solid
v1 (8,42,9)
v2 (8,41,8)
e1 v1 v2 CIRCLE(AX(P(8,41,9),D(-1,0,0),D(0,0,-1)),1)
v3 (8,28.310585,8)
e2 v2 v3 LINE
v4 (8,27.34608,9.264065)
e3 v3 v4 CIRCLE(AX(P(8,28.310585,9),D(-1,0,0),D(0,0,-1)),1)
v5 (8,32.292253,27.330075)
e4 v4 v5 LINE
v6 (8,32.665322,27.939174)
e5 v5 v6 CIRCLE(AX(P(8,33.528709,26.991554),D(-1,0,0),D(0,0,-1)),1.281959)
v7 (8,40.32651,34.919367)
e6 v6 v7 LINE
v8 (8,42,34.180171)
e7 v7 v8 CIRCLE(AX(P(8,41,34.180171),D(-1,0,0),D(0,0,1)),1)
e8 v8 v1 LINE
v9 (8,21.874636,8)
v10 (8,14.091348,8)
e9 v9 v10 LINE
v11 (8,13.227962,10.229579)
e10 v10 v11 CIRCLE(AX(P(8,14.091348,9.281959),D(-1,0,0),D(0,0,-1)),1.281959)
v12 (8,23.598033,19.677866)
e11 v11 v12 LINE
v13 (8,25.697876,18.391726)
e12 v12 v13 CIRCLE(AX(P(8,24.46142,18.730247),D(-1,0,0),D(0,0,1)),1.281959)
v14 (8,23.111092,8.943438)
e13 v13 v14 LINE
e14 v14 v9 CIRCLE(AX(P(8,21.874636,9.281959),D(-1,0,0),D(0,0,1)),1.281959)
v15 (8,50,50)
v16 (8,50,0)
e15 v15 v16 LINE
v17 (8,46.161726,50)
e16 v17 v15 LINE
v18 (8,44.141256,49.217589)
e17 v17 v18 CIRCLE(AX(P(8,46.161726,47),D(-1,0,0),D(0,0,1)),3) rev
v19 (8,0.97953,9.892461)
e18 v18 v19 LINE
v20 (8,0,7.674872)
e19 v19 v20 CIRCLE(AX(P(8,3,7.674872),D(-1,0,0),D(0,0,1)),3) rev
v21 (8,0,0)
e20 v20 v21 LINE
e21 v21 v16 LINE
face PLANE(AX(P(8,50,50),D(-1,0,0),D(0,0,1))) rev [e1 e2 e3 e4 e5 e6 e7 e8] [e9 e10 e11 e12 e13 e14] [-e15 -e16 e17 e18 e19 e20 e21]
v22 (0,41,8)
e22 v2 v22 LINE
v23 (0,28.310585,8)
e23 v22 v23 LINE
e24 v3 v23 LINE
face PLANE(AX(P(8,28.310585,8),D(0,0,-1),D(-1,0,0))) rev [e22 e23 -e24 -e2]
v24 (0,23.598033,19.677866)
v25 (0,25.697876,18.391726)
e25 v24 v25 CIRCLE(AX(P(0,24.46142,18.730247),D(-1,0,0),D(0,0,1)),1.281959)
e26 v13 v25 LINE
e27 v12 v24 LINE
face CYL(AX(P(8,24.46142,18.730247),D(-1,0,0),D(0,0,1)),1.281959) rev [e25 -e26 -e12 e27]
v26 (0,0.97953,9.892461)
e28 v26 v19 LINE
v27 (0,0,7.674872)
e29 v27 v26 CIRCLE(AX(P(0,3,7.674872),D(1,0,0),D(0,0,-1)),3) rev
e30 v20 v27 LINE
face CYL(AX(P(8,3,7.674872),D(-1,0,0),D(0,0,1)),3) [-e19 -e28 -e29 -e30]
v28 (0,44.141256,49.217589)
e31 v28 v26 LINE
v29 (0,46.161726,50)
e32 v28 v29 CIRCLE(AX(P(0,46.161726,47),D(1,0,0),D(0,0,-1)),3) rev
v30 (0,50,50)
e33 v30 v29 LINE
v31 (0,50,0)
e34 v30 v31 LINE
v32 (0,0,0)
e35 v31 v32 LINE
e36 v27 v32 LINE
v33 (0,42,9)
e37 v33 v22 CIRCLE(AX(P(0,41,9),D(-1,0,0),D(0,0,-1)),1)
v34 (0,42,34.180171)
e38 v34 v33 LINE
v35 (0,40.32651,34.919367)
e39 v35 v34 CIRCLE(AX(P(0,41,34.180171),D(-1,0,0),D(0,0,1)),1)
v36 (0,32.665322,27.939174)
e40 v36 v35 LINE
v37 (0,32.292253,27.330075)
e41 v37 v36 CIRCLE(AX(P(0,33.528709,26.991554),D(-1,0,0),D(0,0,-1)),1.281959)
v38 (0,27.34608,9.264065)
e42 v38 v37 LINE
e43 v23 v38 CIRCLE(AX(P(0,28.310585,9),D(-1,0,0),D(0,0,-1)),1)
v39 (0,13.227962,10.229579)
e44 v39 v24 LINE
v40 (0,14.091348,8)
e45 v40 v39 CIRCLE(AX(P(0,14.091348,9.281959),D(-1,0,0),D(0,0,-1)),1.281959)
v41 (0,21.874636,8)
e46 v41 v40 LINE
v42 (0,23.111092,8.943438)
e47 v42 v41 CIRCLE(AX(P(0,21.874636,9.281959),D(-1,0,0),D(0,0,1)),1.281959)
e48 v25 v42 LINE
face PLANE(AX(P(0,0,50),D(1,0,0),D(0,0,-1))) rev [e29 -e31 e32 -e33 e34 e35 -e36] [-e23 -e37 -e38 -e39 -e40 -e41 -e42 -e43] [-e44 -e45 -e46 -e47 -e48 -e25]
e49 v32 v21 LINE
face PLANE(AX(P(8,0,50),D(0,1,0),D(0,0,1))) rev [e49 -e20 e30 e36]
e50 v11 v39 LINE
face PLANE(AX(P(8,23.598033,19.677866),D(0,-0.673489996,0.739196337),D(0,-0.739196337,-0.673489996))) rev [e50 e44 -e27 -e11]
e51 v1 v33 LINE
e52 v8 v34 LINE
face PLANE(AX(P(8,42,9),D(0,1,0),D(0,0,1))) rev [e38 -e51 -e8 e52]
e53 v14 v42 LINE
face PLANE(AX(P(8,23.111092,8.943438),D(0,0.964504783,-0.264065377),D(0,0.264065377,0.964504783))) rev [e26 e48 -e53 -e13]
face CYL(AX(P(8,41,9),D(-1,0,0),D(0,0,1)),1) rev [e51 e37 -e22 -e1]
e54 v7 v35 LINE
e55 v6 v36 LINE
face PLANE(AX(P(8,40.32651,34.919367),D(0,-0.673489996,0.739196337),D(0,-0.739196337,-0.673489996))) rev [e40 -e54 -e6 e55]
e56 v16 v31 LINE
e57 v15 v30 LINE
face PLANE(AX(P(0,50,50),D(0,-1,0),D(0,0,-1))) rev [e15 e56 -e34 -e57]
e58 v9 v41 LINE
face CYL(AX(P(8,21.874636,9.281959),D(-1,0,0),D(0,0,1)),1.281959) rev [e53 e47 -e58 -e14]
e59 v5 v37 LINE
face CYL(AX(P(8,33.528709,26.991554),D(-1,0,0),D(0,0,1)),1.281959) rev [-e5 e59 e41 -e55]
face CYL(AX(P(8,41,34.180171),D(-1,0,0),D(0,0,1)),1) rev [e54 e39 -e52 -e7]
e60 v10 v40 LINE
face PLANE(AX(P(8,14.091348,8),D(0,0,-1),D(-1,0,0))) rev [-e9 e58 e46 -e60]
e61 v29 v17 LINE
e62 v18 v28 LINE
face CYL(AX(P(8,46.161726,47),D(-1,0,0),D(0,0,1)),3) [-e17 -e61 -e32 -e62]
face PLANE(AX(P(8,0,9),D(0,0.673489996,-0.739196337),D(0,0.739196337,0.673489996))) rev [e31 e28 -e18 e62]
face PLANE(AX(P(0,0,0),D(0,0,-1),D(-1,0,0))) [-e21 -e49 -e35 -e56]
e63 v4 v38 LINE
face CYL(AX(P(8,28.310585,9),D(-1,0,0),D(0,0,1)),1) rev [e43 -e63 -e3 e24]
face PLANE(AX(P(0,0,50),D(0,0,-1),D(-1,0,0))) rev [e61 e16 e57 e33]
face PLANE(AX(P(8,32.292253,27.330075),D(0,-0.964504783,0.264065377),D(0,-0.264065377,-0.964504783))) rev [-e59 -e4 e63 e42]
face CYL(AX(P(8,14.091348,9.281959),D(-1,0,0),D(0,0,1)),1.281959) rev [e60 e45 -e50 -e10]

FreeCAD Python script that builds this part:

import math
import FreeCAD as App
import Part
import Sketcher
from FreeCAD import Vector


def edges_at(feature, points):
    """Names of the edges that pass closest to the given points."""
    edges = feature.Shape.Edges
    near = lambda p: min(range(len(edges)), key=lambda i: edges[i].distToShape(Part.Vertex(*p))[0])
    return sorted({f"Edge{near(p) + 1}" for p in points})

doc = App.newDocument("Part")
body = doc.addObject("PartDesign::Body", "Body")

sketch1 = body.newObject("Sketcher::SketchObject", "Sketch")
sketch1.AttachmentSupport = (doc.getObject("XY_Plane"), [""])
sketch1.MapMode = "FlatFace"
sketch1.addGeometry([
    Part.LineSegment(Vector(0, 50, 0), Vector(0, 0, 0)),
    Part.LineSegment(Vector(0, 0, 0), Vector(8, 0, 0)),
    Part.LineSegment(Vector(8, 0, 0), Vector(8, 50, 0)),
    Part.LineSegment(Vector(8, 50, 0), Vector(0, 50, 0)),
], False)
sketch1.addConstraint([
    Sketcher.Constraint("Coincident", 0, 2, 1, 1),
    Sketcher.Constraint("Coincident", 1, 2, 2, 1),
    Sketcher.Constraint("Coincident", 2, 2, 3, 1),
    Sketcher.Constraint("Coincident", 3, 2, 0, 1),
    Sketcher.Constraint("Vertical", 0),
    Sketcher.Constraint("Horizontal", 1),
    Sketcher.Constraint("Vertical", 2),
    Sketcher.Constraint("Horizontal", 3),
    Sketcher.Constraint("Coincident", 0, 2, -1, 1),
    Sketcher.Constraint("DistanceX", 1, 1, 1, 2, 8.0),
    Sketcher.Constraint("DistanceY", 0, 2, 0, 1, 50.0),
])
pad1 = body.newObject("PartDesign::Pad", "Pad")
pad1.Profile = sketch1
pad1.Length = 50

sketch2 = body.newObject("Sketcher::SketchObject", "Sketch001")
sketch2.AttachmentSupport = (doc.getObject("YZ_Plane"), [""])
sketch2.MapMode = "FlatFace"
sketch2.addGeometry([
    Part.LineSegment(Vector(45, 50, 0), Vector(0, 9, 0)),
    Part.LineSegment(Vector(0, 9, 0), Vector(0, 50, 0)),
    Part.LineSegment(Vector(0, 50, 0), Vector(45, 50, 0)),
    Part.LineSegment(Vector(32.7, 27.9, 0), Vector(40.3, 34.9, 0)),
    Part.ArcOfCircle(Part.Circle(Vector(41, 34.2, 0), Vector(0, 0, 1), 1), math.radians(0), math.radians(132)),
    Part.LineSegment(Vector(42, 34.2, 0), Vector(42, 9, 0)),
    Part.ArcOfCircle(Part.Circle(Vector(41, 9, 0), Vector(0, 0, 1), 1), math.radians(-90), math.radians(0)),
    Part.LineSegment(Vector(41, 8, 0), Vector(28.3, 8, 0)),
    Part.ArcOfCircle(Part.Circle(Vector(28.3, 9, 0), Vector(0, 0, 1), 1), math.radians(165), math.radians(270)),
    Part.LineSegment(Vector(27.3, 9.3, 0), Vector(32.3, 27.3, 0)),
    Part.ArcOfCircle(Part.Circle(Vector(33.5, 27, 0), Vector(0, 0, 1), 1.3), math.radians(132), math.radians(165)),
    Part.LineSegment(Vector(13.2, 10.2, 0), Vector(23.6, 19.7, 0)),
    Part.ArcOfCircle(Part.Circle(Vector(24.5, 18.7, 0), Vector(0, 0, 1), 1.3), math.radians(-15), math.radians(132)),
    Part.LineSegment(Vector(25.7, 18.4, 0), Vector(23.1, 8.9, 0)),
    Part.ArcOfCircle(Part.Circle(Vector(21.9, 9.3, 0), Vector(0, 0, 1), 1.3), math.radians(-90), math.radians(-15)),
    Part.LineSegment(Vector(21.9, 8, 0), Vector(14.1, 8, 0)),
    Part.ArcOfCircle(Part.Circle(Vector(14.1, 9.3, 0), Vector(0, 0, 1), 1.3), math.radians(132), math.radians(270)),
], False)
sketch2.addConstraint([
    Sketcher.Constraint("Coincident", 0, 2, 1, 1),
    Sketcher.Constraint("Coincident", 1, 2, 2, 1),
    Sketcher.Constraint("Coincident", 2, 2, 0, 1),
    Sketcher.Constraint("Tangent", 3, 2, 4, 2),
    Sketcher.Constraint("Tangent", 4, 1, 5, 1),
    Sketcher.Constraint("Tangent", 5, 2, 6, 2),
    Sketcher.Constraint("Tangent", 6, 1, 7, 1),
    Sketcher.Constraint("Tangent", 7, 2, 8, 2),
    Sketcher.Constraint("Tangent", 8, 1, 9, 1),
    Sketcher.Constraint("Tangent", 9, 2, 10, 2),
    Sketcher.Constraint("Tangent", 10, 1, 3, 1),
    Sketcher.Constraint("Tangent", 11, 2, 12, 2),
    Sketcher.Constraint("Tangent", 12, 1, 13, 1),
    Sketcher.Constraint("Tangent", 13, 2, 14, 2),
    Sketcher.Constraint("Tangent", 14, 1, 15, 1),
    Sketcher.Constraint("Tangent", 15, 2, 16, 2),
    Sketcher.Constraint("Tangent", 16, 1, 11, 1),
    Sketcher.Constraint("Vertical", 1),
    Sketcher.Constraint("Horizontal", 2),
    Sketcher.Constraint("Vertical", 5),
    Sketcher.Constraint("Horizontal", 7),
    Sketcher.Constraint("Horizontal", 15),
    Sketcher.Constraint("Equal", 4, 6),
    Sketcher.Constraint("Equal", 6, 8),
    Sketcher.Constraint("Equal", 10, 12),
    Sketcher.Constraint("Equal", 12, 14),
    Sketcher.Constraint("Equal", 14, 16),
    Sketcher.Constraint("PointOnObject", 0, 2, -2),
    Sketcher.Constraint("Parallel", 0, 3),
    Sketcher.Constraint("Parallel", 3, 11),
    Sketcher.Constraint("Parallel", 9, 13),
    Sketcher.Constraint("Horizontal", 8, 3, 0, 2),
    Sketcher.Constraint("Horizontal", 7, 2, 14, 1),
    Sketcher.Constraint("Radius", 4, 1.0),
    Sketcher.Constraint("DistanceX", 2, 1, 2, 2, 45.0),
    Sketcher.Constraint("DistanceY", 1, 1, 1, 2, 41.0),
    Sketcher.Constraint("DistanceX", -1, 1, 4, 3, 41.0),
    Sketcher.Constraint("DistanceY", -1, 1, 6, 3, 9.0),
    Sketcher.Constraint("Radius", 10, 1.281959),
    Sketcher.Constraint("Distance", 13, 9.795999),
    Sketcher.Constraint("DistanceY", 5, 2, 5, 1, 25.180171),
    Sketcher.Constraint("DistanceX", 10, 3, 3, 2, 6.797801),
    Sketcher.Constraint("DistanceY", 9, 2, 10, 1, 0.609098),
    Sketcher.Constraint("DistanceX", -1, 1, 12, 3, 24.46142),
])
pocket1 = body.newObject("PartDesign::Pocket", "Pocket")
pocket1.Profile = sketch2
pocket1.Type = "ThroughAll"
pocket1.Reversed = True
doc.recompute()

fillet = body.newObject("PartDesign::Fillet", "Fillet")
fillet.Base = (pocket1, edges_at(pocket1, [(4, 0, 9), (4, 45, 50)]))
fillet.Radius = 3

doc.recompute()
